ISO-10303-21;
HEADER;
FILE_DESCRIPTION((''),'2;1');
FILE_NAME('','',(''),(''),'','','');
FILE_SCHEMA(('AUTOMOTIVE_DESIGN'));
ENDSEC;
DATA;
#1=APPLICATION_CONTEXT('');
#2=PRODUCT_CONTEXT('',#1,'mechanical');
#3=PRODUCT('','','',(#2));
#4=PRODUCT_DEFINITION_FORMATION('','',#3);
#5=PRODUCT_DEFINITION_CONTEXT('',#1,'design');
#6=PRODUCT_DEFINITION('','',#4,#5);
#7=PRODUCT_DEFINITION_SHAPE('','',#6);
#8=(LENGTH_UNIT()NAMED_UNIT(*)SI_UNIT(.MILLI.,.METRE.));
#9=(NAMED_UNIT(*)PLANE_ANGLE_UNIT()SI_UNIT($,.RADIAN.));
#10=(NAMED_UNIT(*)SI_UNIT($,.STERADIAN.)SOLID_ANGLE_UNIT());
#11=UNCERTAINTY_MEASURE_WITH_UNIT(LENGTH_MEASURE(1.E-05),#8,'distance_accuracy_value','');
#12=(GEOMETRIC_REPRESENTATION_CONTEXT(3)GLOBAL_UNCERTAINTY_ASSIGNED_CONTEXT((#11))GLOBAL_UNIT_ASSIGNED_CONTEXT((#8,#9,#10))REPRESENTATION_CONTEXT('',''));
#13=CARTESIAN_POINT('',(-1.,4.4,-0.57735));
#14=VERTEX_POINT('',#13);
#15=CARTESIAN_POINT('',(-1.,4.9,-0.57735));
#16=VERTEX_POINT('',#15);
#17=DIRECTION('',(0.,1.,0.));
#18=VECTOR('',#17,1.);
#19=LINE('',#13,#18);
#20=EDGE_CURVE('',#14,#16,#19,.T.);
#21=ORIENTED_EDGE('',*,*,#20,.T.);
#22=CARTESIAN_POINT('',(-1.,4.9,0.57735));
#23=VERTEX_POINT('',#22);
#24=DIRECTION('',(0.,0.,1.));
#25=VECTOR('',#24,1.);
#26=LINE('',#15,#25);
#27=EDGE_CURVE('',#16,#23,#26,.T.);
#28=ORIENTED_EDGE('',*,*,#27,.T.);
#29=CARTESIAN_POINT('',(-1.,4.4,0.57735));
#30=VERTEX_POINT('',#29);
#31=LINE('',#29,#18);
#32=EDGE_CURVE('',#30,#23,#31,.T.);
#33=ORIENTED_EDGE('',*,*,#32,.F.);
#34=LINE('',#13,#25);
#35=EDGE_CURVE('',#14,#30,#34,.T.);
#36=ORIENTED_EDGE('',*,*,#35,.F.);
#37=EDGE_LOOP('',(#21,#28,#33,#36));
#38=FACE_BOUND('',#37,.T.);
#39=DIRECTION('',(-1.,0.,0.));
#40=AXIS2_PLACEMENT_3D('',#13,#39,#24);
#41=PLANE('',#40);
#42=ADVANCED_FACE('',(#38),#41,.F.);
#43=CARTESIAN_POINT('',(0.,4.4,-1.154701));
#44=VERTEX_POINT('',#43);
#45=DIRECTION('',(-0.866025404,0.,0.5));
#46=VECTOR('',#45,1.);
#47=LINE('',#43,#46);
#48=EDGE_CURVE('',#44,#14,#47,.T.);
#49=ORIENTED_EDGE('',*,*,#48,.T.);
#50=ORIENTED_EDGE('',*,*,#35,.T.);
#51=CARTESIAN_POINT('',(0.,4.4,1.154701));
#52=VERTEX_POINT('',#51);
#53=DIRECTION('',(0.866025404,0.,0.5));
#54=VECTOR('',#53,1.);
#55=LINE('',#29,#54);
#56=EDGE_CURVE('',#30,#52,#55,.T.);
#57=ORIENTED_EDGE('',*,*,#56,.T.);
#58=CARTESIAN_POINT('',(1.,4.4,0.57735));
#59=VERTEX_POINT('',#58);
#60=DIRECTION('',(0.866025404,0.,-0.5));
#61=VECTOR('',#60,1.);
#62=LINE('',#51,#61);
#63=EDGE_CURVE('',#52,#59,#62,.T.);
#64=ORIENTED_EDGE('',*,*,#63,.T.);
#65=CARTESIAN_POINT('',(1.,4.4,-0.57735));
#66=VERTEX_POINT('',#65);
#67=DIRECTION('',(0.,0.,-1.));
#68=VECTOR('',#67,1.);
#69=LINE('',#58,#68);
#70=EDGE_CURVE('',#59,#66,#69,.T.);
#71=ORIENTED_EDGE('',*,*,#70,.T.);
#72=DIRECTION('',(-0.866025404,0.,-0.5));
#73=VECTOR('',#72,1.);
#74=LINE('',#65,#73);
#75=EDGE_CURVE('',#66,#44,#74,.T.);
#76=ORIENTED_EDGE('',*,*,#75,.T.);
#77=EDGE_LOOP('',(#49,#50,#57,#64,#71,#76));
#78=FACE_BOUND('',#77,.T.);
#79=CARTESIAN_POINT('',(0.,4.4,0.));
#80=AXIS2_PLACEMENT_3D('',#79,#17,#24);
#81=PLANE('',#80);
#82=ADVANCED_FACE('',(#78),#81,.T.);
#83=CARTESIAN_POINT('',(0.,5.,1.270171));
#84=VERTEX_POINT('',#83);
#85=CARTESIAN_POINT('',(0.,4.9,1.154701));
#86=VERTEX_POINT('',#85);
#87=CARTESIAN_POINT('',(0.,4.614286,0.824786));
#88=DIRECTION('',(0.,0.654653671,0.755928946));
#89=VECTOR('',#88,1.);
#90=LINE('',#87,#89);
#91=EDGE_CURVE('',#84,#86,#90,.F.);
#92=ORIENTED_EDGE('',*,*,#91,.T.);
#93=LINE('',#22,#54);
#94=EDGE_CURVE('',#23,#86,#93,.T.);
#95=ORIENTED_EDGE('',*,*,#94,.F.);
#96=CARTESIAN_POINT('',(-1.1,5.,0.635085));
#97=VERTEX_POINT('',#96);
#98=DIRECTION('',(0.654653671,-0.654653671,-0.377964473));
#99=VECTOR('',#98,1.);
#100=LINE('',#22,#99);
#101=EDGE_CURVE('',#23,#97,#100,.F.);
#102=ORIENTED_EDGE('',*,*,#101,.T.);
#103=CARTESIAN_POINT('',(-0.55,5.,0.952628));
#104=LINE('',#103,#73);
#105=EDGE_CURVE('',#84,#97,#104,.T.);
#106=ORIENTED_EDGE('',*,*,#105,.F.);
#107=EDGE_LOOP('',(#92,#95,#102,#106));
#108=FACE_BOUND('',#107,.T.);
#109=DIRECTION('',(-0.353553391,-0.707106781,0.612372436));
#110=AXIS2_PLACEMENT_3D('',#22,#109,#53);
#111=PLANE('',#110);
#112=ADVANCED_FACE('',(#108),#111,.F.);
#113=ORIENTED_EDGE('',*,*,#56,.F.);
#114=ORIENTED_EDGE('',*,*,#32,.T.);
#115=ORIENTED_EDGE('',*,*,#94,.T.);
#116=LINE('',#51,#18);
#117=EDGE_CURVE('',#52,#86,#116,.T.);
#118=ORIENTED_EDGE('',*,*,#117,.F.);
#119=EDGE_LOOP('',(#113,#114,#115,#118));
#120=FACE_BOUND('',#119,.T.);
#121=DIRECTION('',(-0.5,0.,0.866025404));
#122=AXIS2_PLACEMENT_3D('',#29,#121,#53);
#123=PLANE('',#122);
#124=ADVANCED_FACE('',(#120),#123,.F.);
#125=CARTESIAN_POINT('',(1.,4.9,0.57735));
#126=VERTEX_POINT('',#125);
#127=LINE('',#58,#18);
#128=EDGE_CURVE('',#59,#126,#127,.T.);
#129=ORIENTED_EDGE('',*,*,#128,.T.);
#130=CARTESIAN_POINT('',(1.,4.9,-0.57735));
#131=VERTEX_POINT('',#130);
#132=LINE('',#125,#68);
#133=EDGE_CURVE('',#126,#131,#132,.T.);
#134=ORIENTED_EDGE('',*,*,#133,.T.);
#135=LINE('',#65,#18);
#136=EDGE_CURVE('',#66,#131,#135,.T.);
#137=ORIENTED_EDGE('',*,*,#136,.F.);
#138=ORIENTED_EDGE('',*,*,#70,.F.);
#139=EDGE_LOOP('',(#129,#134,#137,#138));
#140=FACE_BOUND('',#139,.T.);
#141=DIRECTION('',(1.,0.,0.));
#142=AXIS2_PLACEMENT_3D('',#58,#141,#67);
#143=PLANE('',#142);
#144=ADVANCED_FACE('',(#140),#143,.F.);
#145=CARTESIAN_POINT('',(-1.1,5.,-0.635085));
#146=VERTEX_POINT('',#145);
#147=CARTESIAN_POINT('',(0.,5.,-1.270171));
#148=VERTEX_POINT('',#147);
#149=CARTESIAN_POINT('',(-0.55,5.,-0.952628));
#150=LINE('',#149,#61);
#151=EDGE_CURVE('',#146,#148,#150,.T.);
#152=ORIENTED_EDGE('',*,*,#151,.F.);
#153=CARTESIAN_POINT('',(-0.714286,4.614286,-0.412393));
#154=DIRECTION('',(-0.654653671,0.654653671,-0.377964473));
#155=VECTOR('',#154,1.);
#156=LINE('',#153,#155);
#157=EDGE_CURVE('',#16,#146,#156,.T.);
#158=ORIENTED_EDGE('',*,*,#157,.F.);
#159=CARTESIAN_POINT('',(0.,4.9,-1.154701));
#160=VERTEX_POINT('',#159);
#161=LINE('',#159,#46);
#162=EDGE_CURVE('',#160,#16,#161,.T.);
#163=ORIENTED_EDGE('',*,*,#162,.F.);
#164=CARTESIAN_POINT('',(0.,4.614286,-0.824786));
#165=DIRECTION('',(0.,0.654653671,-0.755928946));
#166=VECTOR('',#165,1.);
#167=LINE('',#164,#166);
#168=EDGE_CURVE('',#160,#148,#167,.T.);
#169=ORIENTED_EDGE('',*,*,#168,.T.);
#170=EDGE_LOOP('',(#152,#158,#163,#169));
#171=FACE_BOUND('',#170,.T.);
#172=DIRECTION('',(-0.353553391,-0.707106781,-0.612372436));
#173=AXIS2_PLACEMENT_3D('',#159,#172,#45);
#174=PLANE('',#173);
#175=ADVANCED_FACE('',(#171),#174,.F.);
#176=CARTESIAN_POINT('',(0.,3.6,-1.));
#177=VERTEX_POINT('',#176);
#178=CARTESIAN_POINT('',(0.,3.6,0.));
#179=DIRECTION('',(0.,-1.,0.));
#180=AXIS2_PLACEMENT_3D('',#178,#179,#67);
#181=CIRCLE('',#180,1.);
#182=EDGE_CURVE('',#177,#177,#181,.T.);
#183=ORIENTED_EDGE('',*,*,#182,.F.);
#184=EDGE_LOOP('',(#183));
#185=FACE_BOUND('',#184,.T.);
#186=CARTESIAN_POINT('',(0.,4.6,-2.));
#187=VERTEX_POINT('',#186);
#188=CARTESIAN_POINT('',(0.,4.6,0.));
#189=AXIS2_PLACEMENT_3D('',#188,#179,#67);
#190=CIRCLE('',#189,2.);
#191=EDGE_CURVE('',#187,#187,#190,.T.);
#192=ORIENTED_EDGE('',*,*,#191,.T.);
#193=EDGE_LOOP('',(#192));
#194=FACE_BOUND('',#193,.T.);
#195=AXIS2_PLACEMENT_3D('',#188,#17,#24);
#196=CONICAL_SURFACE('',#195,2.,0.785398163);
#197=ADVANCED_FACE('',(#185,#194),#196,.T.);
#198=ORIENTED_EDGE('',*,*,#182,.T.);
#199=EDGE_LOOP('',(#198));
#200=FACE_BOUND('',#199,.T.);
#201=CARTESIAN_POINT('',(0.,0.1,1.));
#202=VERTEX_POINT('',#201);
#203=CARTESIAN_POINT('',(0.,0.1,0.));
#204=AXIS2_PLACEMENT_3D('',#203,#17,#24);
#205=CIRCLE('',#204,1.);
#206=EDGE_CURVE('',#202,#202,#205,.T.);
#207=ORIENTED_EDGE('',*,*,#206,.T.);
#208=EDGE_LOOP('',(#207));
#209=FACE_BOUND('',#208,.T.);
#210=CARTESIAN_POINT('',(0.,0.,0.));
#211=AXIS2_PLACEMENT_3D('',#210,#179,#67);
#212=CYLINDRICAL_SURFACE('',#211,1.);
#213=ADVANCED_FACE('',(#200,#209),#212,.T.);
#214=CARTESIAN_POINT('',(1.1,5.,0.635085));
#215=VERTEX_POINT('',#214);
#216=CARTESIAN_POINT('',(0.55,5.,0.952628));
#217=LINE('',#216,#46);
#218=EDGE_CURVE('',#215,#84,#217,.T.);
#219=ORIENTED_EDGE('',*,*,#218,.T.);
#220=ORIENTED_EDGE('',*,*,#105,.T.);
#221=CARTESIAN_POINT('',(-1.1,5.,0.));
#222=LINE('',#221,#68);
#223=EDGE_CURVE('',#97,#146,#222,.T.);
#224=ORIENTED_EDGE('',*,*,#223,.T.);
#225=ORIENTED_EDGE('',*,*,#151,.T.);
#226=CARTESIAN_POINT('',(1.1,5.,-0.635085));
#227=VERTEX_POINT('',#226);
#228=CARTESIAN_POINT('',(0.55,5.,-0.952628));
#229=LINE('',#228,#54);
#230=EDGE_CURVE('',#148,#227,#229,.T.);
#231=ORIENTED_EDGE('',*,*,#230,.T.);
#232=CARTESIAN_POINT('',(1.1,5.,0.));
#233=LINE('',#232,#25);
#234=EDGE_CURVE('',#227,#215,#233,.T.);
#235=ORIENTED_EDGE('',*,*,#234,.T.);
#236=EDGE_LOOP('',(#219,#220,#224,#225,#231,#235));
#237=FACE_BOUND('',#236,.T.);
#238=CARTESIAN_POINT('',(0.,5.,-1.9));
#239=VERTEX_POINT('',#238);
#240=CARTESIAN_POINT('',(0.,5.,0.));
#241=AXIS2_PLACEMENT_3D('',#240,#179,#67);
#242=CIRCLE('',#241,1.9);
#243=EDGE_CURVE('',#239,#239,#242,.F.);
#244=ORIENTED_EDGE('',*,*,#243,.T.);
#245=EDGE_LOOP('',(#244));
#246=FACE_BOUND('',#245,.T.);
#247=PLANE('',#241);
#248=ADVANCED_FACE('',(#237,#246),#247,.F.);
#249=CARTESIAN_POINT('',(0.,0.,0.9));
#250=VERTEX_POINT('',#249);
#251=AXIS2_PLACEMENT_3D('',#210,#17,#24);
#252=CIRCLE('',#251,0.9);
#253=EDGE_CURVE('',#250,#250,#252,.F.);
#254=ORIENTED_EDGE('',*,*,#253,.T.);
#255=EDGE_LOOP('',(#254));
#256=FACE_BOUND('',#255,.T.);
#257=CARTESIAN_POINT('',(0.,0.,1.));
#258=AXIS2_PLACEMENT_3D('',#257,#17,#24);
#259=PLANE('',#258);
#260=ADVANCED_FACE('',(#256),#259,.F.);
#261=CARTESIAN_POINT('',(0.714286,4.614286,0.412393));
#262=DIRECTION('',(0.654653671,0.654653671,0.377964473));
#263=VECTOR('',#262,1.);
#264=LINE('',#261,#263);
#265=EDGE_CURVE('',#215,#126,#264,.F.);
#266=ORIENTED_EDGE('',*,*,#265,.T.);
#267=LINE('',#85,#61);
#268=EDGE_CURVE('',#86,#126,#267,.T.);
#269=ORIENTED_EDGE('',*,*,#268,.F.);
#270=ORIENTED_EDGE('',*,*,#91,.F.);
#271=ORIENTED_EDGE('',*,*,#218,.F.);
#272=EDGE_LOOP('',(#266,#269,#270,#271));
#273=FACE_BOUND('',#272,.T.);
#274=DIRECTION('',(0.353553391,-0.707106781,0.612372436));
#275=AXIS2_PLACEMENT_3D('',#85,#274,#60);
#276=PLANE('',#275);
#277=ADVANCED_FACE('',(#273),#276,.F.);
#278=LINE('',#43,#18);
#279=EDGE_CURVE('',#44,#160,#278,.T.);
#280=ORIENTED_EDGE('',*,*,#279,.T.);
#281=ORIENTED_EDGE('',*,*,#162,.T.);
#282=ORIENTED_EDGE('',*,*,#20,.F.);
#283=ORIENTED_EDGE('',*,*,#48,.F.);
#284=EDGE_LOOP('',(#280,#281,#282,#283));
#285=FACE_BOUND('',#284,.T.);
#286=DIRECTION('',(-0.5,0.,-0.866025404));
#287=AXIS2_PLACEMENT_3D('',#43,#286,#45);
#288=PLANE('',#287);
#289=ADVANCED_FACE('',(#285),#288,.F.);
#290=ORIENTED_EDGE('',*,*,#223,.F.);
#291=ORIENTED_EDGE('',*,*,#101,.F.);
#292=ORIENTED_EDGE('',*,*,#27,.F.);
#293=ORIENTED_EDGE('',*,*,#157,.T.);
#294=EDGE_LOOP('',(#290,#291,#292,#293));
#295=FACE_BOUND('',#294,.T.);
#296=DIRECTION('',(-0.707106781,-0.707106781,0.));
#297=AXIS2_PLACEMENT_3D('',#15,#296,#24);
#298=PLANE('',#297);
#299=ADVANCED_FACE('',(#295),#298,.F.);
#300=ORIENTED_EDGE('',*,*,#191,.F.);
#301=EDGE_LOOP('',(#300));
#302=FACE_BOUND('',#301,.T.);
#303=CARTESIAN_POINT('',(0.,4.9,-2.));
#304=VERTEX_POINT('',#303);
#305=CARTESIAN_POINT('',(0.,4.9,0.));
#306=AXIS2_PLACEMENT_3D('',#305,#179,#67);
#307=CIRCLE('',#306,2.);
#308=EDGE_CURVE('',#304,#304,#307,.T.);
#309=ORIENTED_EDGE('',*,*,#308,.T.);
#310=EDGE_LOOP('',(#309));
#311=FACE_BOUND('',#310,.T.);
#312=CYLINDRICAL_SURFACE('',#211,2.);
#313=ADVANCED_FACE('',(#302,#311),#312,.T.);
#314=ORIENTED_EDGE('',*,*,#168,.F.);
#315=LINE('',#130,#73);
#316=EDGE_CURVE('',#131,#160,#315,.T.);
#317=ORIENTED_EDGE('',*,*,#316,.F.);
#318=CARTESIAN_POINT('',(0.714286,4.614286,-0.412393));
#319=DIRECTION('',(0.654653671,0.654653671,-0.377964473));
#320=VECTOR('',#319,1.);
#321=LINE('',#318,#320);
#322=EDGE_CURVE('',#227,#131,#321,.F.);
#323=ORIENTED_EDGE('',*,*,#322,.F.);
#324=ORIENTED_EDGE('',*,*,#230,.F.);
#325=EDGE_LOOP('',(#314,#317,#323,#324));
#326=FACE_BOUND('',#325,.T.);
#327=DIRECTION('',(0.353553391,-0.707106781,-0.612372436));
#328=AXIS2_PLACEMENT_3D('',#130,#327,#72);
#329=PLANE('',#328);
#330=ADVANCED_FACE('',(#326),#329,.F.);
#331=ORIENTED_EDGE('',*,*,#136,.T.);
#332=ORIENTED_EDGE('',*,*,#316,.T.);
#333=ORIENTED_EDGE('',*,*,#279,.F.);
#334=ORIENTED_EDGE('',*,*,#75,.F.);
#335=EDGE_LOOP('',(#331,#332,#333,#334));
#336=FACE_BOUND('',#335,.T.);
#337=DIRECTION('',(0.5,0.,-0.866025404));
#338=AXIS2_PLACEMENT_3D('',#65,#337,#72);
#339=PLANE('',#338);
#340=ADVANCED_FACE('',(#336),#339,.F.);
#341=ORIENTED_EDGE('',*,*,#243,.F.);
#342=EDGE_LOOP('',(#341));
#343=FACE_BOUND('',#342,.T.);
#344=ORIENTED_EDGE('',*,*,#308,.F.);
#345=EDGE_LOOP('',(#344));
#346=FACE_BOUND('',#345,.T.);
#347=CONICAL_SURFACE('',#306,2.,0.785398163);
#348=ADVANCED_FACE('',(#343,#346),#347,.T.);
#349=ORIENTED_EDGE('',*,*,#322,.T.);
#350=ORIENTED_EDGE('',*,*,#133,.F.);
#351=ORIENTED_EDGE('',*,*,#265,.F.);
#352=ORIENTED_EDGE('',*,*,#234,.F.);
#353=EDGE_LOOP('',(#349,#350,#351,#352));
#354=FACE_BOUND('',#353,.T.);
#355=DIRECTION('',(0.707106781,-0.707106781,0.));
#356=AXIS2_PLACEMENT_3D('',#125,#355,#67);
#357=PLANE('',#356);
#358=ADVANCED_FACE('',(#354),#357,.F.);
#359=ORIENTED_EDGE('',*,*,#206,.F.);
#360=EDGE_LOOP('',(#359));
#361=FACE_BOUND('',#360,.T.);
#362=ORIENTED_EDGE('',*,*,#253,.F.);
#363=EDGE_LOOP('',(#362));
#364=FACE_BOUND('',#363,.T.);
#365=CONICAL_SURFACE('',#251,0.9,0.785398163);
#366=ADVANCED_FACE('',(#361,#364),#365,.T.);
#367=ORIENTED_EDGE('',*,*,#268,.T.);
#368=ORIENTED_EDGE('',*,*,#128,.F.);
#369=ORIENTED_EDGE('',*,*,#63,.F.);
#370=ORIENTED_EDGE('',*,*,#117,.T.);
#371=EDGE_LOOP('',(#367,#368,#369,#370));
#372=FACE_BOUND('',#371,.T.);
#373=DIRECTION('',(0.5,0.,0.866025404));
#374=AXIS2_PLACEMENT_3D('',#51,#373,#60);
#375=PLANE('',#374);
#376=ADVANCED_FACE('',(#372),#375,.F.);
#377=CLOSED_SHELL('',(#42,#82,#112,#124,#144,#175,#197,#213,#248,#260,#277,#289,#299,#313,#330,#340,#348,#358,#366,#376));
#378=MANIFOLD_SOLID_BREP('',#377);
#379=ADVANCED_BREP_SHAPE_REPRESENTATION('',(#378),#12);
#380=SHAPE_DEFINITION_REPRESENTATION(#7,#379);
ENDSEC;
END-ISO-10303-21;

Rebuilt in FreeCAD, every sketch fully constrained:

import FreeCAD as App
import Part
import Sketcher
from FreeCAD import Vector
Q = App.Units.Quantity


def edges_at(feature, points):
    """Names of the edges that pass closest to the given points."""
    edges = feature.Shape.Edges
    near = lambda p: min(range(len(edges)), key=lambda i: edges[i].distToShape(Part.Vertex(*p))[0])
    return sorted({f"Edge{near(p) + 1}" for p in points})

doc = App.newDocument("Part")
body = doc.addObject("PartDesign::Body", "Body")

# Sketch on YZ plane
sketch1 = body.newObject("Sketcher::SketchObject", "Sketch")
sketch1.AttachmentSupport = (doc.getObject("YZ_Plane"), [""])
sketch1.MapMode = "FlatFace"
sketch1.addGeometry([
    Part.LineSegment(Vector(5, 0, 0), Vector(5, 2, 0)),  # 0
    Part.LineSegment(Vector(5, 2, 0), Vector(4.6, 2, 0)),  # 1
    Part.LineSegment(Vector(4.6, 2, 0), Vector(3.6, 1, 0)),  # 2
    Part.LineSegment(Vector(3.6, 1, 0), Vector(0, 1, 0)),  # 3
    Part.LineSegment(Vector(0, 1, 0), Vector(0, 0, 0)),  # 4
    Part.LineSegment(Vector(0, 0, 0), Vector(5, 0, 0)),  # 5
], False)
sketch1.addConstraint([
    Sketcher.Constraint("Coincident", 0, 2, 1, 1),
    Sketcher.Constraint("Coincident", 1, 2, 2, 1),
    Sketcher.Constraint("Coincident", 2, 2, 3, 1),
    Sketcher.Constraint("Coincident", 3, 2, 4, 1),
    Sketcher.Constraint("Coincident", 4, 2, 5, 1),
    Sketcher.Constraint("Coincident", 5, 2, 0, 1),
    Sketcher.Constraint("Vertical", 0),
    Sketcher.Constraint("Horizontal", 1),
    Sketcher.Constraint("Horizontal", 3),
    Sketcher.Constraint("Vertical", 4),
    Sketcher.Constraint("Horizontal", 5),
    Sketcher.Constraint("Coincident", 4, 2, -1, 1),
    Sketcher.Constraint("DistanceX", 5, 1, 5, 2, 5.0),
    Sketcher.Constraint("DistanceY", 0, 1, 0, 2, 2.0),
    Sketcher.Constraint("DistanceY", 4, 2, 4, 1, 1.0),
    Sketcher.Constraint("Angle", 2, Q("-135 deg")),
    Sketcher.Constraint("DistanceX", 1, 2, 1, 1, 0.4),
])
revolution = body.newObject("PartDesign::Revolution", "Revolution")
revolution.Profile = sketch1
revolution.ReferenceAxis = (sketch1, ["H_Axis"])
revolution.Angle = 360

# Sketch on XZ plane
sketch2 = body.newObject("Sketcher::SketchObject", "Sketch001")
sketch2.AttachmentSupport = (doc.getObject("XZ_Plane"), [""])
sketch2.MapMode = "FlatFace"
sketch2.AttachmentOffset = App.Placement(Vector(0, 0, -5), App.Rotation())
sketch2.addGeometry([
    Part.LineSegment(Vector(0, 1.2, 0), Vector(1, 0.6, 0)),  # 0
    Part.LineSegment(Vector(1, 0.6, 0), Vector(1, -0.6, 0)),  # 1
    Part.LineSegment(Vector(1, -0.6, 0), Vector(0, -1.2, 0)),  # 2
    Part.LineSegment(Vector(0, -1.2, 0), Vector(-1, -0.6, 0)),  # 3
    Part.LineSegment(Vector(-1, -0.6, 0), Vector(-1, 0.6, 0)),  # 4
    Part.LineSegment(Vector(-1, 0.6, 0), Vector(0, 1.2, 0)),  # 5
], False)
sketch2.addConstraint([
    Sketcher.Constraint("Coincident", 0, 2, 1, 1),
    Sketcher.Constraint("Coincident", 1, 2, 2, 1),
    Sketcher.Constraint("Coincident", 2, 2, 3, 1),
    Sketcher.Constraint("Coincident", 3, 2, 4, 1),
    Sketcher.Constraint("Coincident", 4, 2, 5, 1),
    Sketcher.Constraint("Coincident", 5, 2, 0, 1),
    Sketcher.Constraint("Vertical", 1),
    Sketcher.Constraint("Vertical", 4),
    Sketcher.Constraint("Symmetric", 0, 2, 3, 2, -1, 1),
    Sketcher.Constraint("Symmetric", 2, 2, 5, 2, -1, 1),
    Sketcher.Constraint("PointOnObject", 2, 2, -2),
    Sketcher.Constraint("Parallel", 2, 5),
    Sketcher.Constraint("Horizontal", 1, 2, 3, 2),
    Sketcher.Constraint("Angle", 0, Q("-30 deg")),
    Sketcher.Constraint("DistanceX", -1, 1, 0, 2, 1.0),
    Sketcher.Constraint("DistanceY", 1, 2, 1, 1, 1.154701),
])
pocket1 = body.newObject("PartDesign::Pocket", "Pocket")
pocket1.Profile = sketch2
pocket1.Length = 0.6
pocket1.Reversed = True
doc.recompute()

chamfer = body.newObject("PartDesign::Chamfer", "Chamfer")
chamfer.Base = (pocket1, edges_at(pocket1, [(0, 0, 1)]))
chamfer.Size = 0.1
doc.recompute()

chamfer2 = body.newObject("PartDesign::Chamfer", "Chamfer001")
chamfer2.Base = (chamfer, edges_at(chamfer, [
    (-0.5, 5, 0.866),
    (0.5, 5, 0.866),
    (1, 5, 0),
    (0.5, 5, -0.866),
    (-0.5, 5, -0.866),
    (-1, 5, 0),
    (0, 5, 2),
]))
chamfer2.Size = 0.1

doc.recompute()
